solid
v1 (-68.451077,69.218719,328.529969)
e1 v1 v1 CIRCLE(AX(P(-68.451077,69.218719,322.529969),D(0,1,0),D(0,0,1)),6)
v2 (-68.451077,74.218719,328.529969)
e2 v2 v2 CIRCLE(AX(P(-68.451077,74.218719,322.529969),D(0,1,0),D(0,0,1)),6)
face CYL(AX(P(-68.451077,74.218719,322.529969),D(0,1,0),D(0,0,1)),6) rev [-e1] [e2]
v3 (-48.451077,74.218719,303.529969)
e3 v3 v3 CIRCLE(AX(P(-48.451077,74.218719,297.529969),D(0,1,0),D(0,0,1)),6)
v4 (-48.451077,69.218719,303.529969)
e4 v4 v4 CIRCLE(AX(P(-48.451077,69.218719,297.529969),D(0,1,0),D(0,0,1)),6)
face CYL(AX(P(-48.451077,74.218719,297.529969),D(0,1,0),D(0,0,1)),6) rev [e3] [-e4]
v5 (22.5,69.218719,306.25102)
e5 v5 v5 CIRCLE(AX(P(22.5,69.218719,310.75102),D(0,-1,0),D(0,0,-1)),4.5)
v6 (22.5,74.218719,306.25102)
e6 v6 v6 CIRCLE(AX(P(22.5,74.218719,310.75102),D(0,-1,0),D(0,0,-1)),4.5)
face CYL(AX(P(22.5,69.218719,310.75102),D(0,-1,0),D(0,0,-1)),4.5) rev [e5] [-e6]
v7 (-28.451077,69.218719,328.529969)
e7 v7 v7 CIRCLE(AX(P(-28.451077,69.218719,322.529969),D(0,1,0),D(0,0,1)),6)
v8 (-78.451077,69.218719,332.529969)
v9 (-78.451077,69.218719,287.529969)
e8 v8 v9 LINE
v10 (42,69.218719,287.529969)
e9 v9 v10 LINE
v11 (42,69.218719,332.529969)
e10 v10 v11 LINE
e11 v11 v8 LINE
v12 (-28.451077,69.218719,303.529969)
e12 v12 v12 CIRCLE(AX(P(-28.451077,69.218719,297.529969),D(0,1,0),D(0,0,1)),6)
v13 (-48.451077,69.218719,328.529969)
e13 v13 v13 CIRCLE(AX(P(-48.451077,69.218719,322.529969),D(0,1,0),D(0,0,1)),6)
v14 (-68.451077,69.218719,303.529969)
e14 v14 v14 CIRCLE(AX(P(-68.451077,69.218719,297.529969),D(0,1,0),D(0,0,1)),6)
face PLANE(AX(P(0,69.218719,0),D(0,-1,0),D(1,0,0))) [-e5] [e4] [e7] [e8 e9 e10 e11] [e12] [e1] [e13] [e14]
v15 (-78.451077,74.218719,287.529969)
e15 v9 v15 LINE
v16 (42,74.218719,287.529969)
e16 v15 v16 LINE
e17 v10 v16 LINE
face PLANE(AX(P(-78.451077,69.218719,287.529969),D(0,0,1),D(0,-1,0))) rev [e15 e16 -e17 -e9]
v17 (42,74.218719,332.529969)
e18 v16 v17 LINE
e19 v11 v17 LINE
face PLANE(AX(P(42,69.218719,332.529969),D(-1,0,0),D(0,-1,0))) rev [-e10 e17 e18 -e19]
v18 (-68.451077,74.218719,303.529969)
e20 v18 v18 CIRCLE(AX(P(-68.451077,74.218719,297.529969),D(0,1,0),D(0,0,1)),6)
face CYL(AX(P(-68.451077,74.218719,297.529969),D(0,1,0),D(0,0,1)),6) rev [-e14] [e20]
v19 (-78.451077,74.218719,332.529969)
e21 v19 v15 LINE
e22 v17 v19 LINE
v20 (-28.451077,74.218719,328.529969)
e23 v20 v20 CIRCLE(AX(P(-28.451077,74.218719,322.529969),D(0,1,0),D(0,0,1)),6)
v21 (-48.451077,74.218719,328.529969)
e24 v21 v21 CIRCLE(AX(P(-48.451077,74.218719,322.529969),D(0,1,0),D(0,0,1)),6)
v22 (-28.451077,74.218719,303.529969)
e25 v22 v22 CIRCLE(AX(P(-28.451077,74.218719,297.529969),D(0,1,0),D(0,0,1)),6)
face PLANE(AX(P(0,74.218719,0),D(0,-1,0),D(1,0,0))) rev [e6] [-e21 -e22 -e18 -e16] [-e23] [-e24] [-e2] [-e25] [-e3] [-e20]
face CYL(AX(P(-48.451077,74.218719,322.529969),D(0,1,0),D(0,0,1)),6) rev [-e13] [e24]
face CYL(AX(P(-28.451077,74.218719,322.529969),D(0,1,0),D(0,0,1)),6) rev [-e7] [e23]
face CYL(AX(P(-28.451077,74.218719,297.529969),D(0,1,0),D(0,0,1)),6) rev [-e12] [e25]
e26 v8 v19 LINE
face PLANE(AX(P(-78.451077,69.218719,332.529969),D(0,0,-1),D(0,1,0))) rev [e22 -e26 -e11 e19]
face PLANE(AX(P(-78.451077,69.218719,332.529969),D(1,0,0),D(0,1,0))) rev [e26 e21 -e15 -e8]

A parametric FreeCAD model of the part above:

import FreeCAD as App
import Part
import Sketcher
from FreeCAD import Vector


def add_polygon(sketch, points):
    """Adds a closed chain of lines whose ends are joined by coincident constraints."""
    first, n = sketch.GeometryCount, len(points)
    for a, b in zip(points, points[1:] + points[:1]):
        sketch.addGeometry(Part.LineSegment(App.Vector(*a, 0), App.Vector(*b, 0)), False)
    for i in range(n):
        sketch.addConstraint(Sketcher.Constraint("Coincident", first + i, 2, first + (i + 1) % n, 1))

doc = App.newDocument("Part")
params = doc.addObject("Spreadsheet::Sheet", "Params")
for row, (alias, value) in enumerate([
    ("sketch1_height", "45 mm"),
    ("pad1_length", "5 mm"),
    ("sketch2_diameter", "12 mm"),
    ("hole_diameter", "12 mm"),
    ("sketch3_diameter", "9 mm"),
    ("hole2_diameter", "9 mm"),
], start=1):
    params.set(f"A{row}", alias)
    params.set(f"B{row}", "=" + value)
    params.setAlias(f"B{row}", alias)

body = doc.addObject("PartDesign::Body", "Body")

# Sketch on XZ plane
sketch1 = doc.addObject("Sketcher::SketchObject", "Sketch")
body.addObject(sketch1)
sketch1.AttachmentSupport = (doc.XZ_Plane, [""])
sketch1.MapMode = "FlatFace"
sketch1.AttachmentOffset = App.Placement(Vector(0, 0, -74.218719), App.Rotation())
add_polygon(sketch1, [(-78, 333), (-78, 288), (42, 288), (42, 333)])  # lines 0-3
sketch1.addConstraint(Sketcher.Constraint("Vertical", 0))
sketch1.addConstraint(Sketcher.Constraint("Horizontal", 1))
sketch1.addConstraint(Sketcher.Constraint("Vertical", 2))
sketch1.addConstraint(Sketcher.Constraint("Horizontal", 3))
sketch1.addConstraint(Sketcher.Constraint("DistanceY", 0, 2, 0, 1, 45.0))
sketch1.addConstraint(Sketcher.Constraint("DistanceX", -1, 1, 1, 2, 42.0))
sketch1.addConstraint(Sketcher.Constraint("DistanceX", 1, 1, 1, 2, 120.451077))
sketch1.addConstraint(Sketcher.Constraint("DistanceY", -1, 1, 0, 2, 287.529969))
sketch1.setExpression("Constraints[8]", "Params.sketch1_height")
pad1 = doc.addObject("PartDesign::Pad", "Pad")
body.addObject(pad1)
pad1.Profile = sketch1
pad1.setExpression("Length", "Params.pad1_length")

# Sketch on XZ plane
sketch2 = doc.addObject("Sketcher::SketchObject", "Sketch001")
body.addObject(sketch2)
sketch2.AttachmentSupport = (doc.XZ_Plane, [""])
sketch2.MapMode = "FlatFace"
sketch2.AttachmentOffset = App.Placement(Vector(0, 0, -74.218719), App.Rotation())
sketch2.addGeometry(Part.Circle(Vector(-68, 323, 0), Vector(0, 0, 1), 6), False)
sketch2.addGeometry(Part.Circle(Vector(-68, 298, 0), Vector(0, 0, 1), 6), False)
sketch2.addGeometry(Part.Circle(Vector(-48, 323, 0), Vector(0, 0, 1), 6), False)
sketch2.addGeometry(Part.Circle(Vector(-28, 323, 0), Vector(0, 0, 1), 6), False)
sketch2.addGeometry(Part.Circle(Vector(-48, 298, 0), Vector(0, 0, 1), 6), False)
sketch2.addGeometry(Part.Circle(Vector(-28, 298, 0), Vector(0, 0, 1), 6), False)
sketch2.addConstraint(Sketcher.Constraint("Equal", 0, 1))
sketch2.addConstraint(Sketcher.Constraint("Equal", 1, 2))
sketch2.addConstraint(Sketcher.Constraint("Equal", 2, 3))
sketch2.addConstraint(Sketcher.Constraint("Equal", 3, 4))
sketch2.addConstraint(Sketcher.Constraint("Equal", 4, 5))
sketch2.addConstraint(Sketcher.Constraint("Horizontal", 0, 3, 2, 3))
sketch2.addConstraint(Sketcher.Constraint("Horizontal", 2, 3, 3, 3))
sketch2.addConstraint(Sketcher.Constraint("Horizontal", 1, 3, 4, 3))
sketch2.addConstraint(Sketcher.Constraint("Horizontal", 4, 3, 5, 3))
sketch2.addConstraint(Sketcher.Constraint("Vertical", 0, 3, 1, 3))
sketch2.addConstraint(Sketcher.Constraint("Vertical", 2, 3, 4, 3))
sketch2.addConstraint(Sketcher.Constraint("Vertical", 3, 3, 5, 3))
sketch2.addConstraint(Sketcher.Constraint("Diameter", 0, 12.0))
sketch2.addConstraint(Sketcher.Constraint("DistanceY", 1, 3, 0, 3, 25.0))
sketch2.addConstraint(Sketcher.Constraint("DistanceX", 0, 3, 2, 3, 20.0))
sketch2.addConstraint(Sketcher.Constraint("DistanceX", 2, 3, 3, 3, 20.0))
sketch2.addConstraint(Sketcher.Constraint("DistanceY", -1, 1, 0, 3, 322.529969))
sketch2.addConstraint(Sketcher.Constraint("DistanceX", 0, 3, -1, 1, 68.451077))
sketch2.setExpression("Constraints[12]", "Params.sketch2_diameter")
doc.recompute()
hole = doc.addObject("PartDesign::Hole", "Hole")
body.addObject(hole)
hole.Profile = sketch2
hole.ThreadType = "None"
hole.setExpression("Diameter", "Params.hole_diameter")
hole.DepthType = "ThroughAll"
hole.Reversed = True

# Sketch on XZ plane
sketch3 = doc.addObject("Sketcher::SketchObject", "Sketch002")
body.addObject(sketch3)
sketch3.AttachmentSupport = (doc.XZ_Plane, [""])
sketch3.MapMode = "FlatFace"
sketch3.AttachmentOffset = App.Placement(Vector(0, 0, -69.218719), App.Rotation())
sketch3.addGeometry(Part.Circle(Vector(22.5, 310.8, 0), Vector(0, 0, 1), 4.5), False)
sketch3.addConstraint(Sketcher.Constraint("Diameter", 0, 9.0))
sketch3.addConstraint(Sketcher.Constraint("DistanceX", -1, 1, 0, 3, 22.5))
sketch3.addConstraint(Sketcher.Constraint("DistanceY", -1, 1, 0, 3, 310.75102))
sketch3.setExpression("Constraints[0]", "Params.sketch3_diameter")
doc.recompute()
hole2 = doc.addObject("PartDesign::Hole", "Hole001")
body.addObject(hole2)
hole2.Profile = sketch3
hole2.ThreadType = "None"
hole2.setExpression("Diameter", "Params.hole2_diameter")
hole2.DepthType = "ThroughAll"

doc.recompute()
